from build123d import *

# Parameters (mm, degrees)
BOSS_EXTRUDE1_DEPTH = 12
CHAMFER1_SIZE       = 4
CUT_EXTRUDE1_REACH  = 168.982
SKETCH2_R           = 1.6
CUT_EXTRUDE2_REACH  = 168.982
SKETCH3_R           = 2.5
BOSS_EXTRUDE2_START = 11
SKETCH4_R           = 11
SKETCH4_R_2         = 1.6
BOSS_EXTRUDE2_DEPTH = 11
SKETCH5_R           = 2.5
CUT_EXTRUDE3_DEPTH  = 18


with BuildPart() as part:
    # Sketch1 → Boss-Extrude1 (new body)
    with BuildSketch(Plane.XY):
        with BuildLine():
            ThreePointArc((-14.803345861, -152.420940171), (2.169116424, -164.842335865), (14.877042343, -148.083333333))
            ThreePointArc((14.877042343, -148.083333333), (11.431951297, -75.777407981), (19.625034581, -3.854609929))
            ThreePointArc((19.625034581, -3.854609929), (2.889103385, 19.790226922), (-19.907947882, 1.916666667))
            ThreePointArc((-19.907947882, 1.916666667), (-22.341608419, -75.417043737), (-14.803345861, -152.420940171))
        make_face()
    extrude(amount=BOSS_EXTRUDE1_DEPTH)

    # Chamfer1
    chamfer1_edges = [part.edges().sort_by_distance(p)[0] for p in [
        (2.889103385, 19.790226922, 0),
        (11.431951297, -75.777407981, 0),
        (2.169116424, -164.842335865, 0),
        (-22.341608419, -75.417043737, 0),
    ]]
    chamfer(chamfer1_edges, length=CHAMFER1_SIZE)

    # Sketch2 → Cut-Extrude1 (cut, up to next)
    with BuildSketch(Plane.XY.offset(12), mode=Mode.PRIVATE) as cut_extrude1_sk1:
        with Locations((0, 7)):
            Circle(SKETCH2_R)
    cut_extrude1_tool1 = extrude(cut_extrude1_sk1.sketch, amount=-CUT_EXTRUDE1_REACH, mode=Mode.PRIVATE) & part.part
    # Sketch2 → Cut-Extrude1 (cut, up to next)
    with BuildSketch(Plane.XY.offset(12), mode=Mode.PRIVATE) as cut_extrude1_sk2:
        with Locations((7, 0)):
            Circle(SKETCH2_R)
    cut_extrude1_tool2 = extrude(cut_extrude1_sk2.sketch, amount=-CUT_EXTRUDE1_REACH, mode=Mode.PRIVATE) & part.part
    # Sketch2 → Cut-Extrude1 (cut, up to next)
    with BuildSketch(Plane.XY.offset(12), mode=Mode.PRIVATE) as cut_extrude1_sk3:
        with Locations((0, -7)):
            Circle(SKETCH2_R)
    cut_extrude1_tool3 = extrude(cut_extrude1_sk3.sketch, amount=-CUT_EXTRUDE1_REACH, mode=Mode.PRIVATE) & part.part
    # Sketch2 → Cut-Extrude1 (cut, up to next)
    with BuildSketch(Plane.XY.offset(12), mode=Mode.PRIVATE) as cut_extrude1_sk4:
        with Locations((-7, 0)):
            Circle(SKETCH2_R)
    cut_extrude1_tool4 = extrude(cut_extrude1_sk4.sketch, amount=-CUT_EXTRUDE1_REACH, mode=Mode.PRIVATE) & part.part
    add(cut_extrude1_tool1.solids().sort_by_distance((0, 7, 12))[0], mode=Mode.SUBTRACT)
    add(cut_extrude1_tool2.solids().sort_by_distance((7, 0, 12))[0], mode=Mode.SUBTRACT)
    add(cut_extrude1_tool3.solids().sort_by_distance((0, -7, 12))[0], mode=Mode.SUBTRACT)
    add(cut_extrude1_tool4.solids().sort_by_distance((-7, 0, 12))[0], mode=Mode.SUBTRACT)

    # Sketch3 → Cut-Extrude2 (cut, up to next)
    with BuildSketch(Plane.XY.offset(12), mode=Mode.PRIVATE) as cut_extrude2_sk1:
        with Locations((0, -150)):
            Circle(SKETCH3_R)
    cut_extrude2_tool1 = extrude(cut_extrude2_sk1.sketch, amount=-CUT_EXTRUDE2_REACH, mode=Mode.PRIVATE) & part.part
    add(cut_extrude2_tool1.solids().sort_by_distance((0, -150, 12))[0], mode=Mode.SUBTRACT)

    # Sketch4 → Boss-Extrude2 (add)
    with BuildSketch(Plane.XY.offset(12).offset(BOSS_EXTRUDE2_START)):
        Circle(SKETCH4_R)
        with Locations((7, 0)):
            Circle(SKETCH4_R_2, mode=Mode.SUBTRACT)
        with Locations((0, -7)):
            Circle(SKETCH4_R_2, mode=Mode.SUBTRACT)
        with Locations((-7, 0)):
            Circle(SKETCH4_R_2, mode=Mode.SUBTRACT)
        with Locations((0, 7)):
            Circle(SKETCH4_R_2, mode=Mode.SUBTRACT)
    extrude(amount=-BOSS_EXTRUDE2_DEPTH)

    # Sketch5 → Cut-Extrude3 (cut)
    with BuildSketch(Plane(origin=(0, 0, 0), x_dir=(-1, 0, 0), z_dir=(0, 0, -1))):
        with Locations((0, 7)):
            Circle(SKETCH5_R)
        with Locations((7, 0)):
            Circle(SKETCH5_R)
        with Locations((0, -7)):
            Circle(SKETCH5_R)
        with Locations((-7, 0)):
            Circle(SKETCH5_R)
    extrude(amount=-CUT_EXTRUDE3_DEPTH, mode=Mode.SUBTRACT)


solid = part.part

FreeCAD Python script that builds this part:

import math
import FreeCAD as App
import Part
import Sketcher
Q = App.Units.Quantity


def edges_at(feature, points):
    """Names of the edges that pass closest to the given points."""
    edges = feature.Shape.Edges
    near = lambda p: min(range(len(edges)), key=lambda i: edges[i].distToShape(Part.Vertex(*p))[0])
    return sorted({f"Edge{near(p) + 1}" for p in points})

doc = App.newDocument("Part")
body = doc.addObject("PartDesign::Body", "Body")

sketch1 = body.newObject("Sketcher::SketchObject", "Sketch")
sketch1.AttachmentSupport = (doc.getObject("XY_Plane"), [""])
sketch1.MapMode = "FlatFace"
sketch1.addGeometry([
    Part.ArcOfCircle(Part.Circle(App.Vector(0, -150, 0), App.Vector(0, 0, 1), 15), math.radians(-170.712065), math.radians(7.341197)),
    Part.ArcOfCircle(Part.Circle(App.Vector(461.188313, -90.583333, 0), App.Vector(0, 0, 1), 450), math.radians(168.887824), math.radians(187.341197)),
    Part.ArcOfCircle(Part.Circle(App.Vector(0, 0, 0), App.Vector(0, 0, 1), 20), math.radians(-11.112176), math.radians(174.500715)),
    Part.ArcOfCircle(Part.Circle(App.Vector(577.330489, -55.583333, 0), App.Vector(0, 0, 1), 600), math.radians(174.500715), math.radians(189.287935)),
], False)
sketch1.addConstraint([
    Sketcher.Constraint("Tangent", 0, 2, 1, 2),
    Sketcher.Constraint("Tangent", 1, 1, 2, 1),
    Sketcher.Constraint("Tangent", 2, 2, 3, 1),
    Sketcher.Constraint("Tangent", 3, 2, 0, 1),
    Sketcher.Constraint("Coincident", 2, 3, -1, 1),
    Sketcher.Constraint("PointOnObject", 0, 3, -2),
    Sketcher.Constraint("Radius", 0, Q("15 mm")),
    Sketcher.Constraint("Radius", 1, Q("450 mm")),
    Sketcher.Constraint("Radius", 2, Q("20 mm")),
    Sketcher.Constraint("Radius", 3, Q("600 mm")),
    Sketcher.Constraint("DistanceY", 0, 3, -1, 1, Q("150 mm")),
])
pad1 = body.newObject("PartDesign::Pad", "Pad")
pad1.Profile = sketch1
pad1.Length = 12
doc.recompute()

chamfer = body.newObject("PartDesign::Chamfer", "Chamfer")
chamfer.Base = (pad1, edges_at(pad1, [
    (2.889, 19.79, 0),
    (11.432, -75.777, 0),
    (2.169, -164.842, 0),
    (-22.342, -75.417, 0),
]))
chamfer.Size = 4

sketch2 = body.newObject("Sketcher::SketchObject", "Sketch001")
sketch2.AttachmentSupport = (doc.getObject("XY_Plane"), [""])
sketch2.MapMode = "FlatFace"
sketch2.AttachmentOffset = App.Placement(App.Vector(0, 0, 12), App.Rotation())
sketch2.addGeometry(Part.Circle(App.Vector(0, 7, 0), App.Vector(0, 0, 1), 1.6), False)
sketch2.addConstraint([
    Sketcher.Constraint("PointOnObject", 0, 3, -2),
    Sketcher.Constraint("Diameter", 0, Q("3.2 mm")),
    Sketcher.Constraint("DistanceY", -1, 1, 0, 3, Q("7 mm")),
])
pocket1 = body.newObject("PartDesign::Pocket", "Pocket")
pocket1.Profile = sketch2
pocket1.Type = "UpToFirst"

sketch3 = body.newObject("Sketcher::SketchObject", "Sketch002")
sketch3.AttachmentSupport = (doc.getObject("XY_Plane"), [""])
sketch3.MapMode = "FlatFace"
sketch3.AttachmentOffset = App.Placement(App.Vector(0, 0, 12), App.Rotation())
sketch3.addGeometry(Part.Circle(App.Vector(7, 0, 0), App.Vector(0, 0, 1), 1.6), False)
sketch3.addConstraint([
    Sketcher.Constraint("PointOnObject", 0, 3, -1),
    Sketcher.Constraint("Diameter", 0, Q("3.2 mm")),
    Sketcher.Constraint("DistanceX", -1, 1, 0, 3, Q("7 mm")),
])
pocket2 = body.newObject("PartDesign::Pocket", "Pocket001")
pocket2.Profile = sketch3
pocket2.Type = "UpToFirst"

sketch4 = body.newObject("Sketcher::SketchObject", "Sketch003")
sketch4.AttachmentSupport = (doc.getObject("XY_Plane"), [""])
sketch4.MapMode = "FlatFace"
sketch4.AttachmentOffset = App.Placement(App.Vector(0, 0, 12), App.Rotation())
sketch4.addGeometry(Part.Circle(App.Vector(0, -7, 0), App.Vector(0, 0, 1), 1.6), False)
sketch4.addConstraint([
    Sketcher.Constraint("PointOnObject", 0, 3, -2),
    Sketcher.Constraint("Diameter", 0, Q("3.2 mm")),
    Sketcher.Constraint("DistanceY", 0, 3, -1, 1, Q("7 mm")),
])
pocket3 = body.newObject("PartDesign::Pocket", "Pocket002")
pocket3.Profile = sketch4
pocket3.Type = "UpToFirst"

sketch5 = body.newObject("Sketcher::SketchObject", "Sketch004")
sketch5.AttachmentSupport = (doc.getObject("XY_Plane"), [""])
sketch5.MapMode = "FlatFace"
sketch5.AttachmentOffset = App.Placement(App.Vector(0, 0, 12), App.Rotation())
sketch5.addGeometry(Part.Circle(App.Vector(-7, 0, 0), App.Vector(0, 0, 1), 1.6), False)
sketch5.addConstraint([
    Sketcher.Constraint("PointOnObject", 0, 3, -1),
    Sketcher.Constraint("Diameter", 0, Q("3.2 mm")),
    Sketcher.Constraint("DistanceX", 0, 3, -1, 1, Q("7 mm")),
])
pocket4 = body.newObject("PartDesign::Pocket", "Pocket003")
pocket4.Profile = sketch5
pocket4.Type = "UpToFirst"

sketch6 = body.newObject("Sketcher::SketchObject", "Sketch005")
sketch6.AttachmentSupport = (doc.getObject("XY_Plane"), [""])
sketch6.MapMode = "FlatFace"
sketch6.AttachmentOffset = App.Placement(App.Vector(0, 0, 12), App.Rotation())
sketch6.addGeometry(Part.Circle(App.Vector(0, -150, 0), App.Vector(0, 0, 1), 2.5), False)
sketch6.addConstraint([
    Sketcher.Constraint("PointOnObject", 0, 3, -2),
    Sketcher.Constraint("Diameter", 0, Q("5 mm")),
    Sketcher.Constraint("DistanceY", 0, 3, -1, 1, Q("150 mm")),
])
pocket5 = body.newObject("PartDesign::Pocket", "Pocket004")
pocket5.Profile = sketch6
pocket5.Type = "UpToFirst"

sketch7 = body.newObject("Sketcher::SketchObject", "Sketch006")
sketch7.AttachmentSupport = (doc.getObject("XY_Plane"), [""])
sketch7.MapMode = "FlatFace"
sketch7.AttachmentOffset = App.Placement(App.Vector(0, 0, 23), App.Rotation())
sketch7.addGeometry([
    Part.Circle(App.Vector(0, 0, 0), App.Vector(0, 0, 1), 11),
    Part.Circle(App.Vector(0, -7, 0), App.Vector(0, 0, 1), 1.6),
    Part.Circle(App.Vector(-7, 0, 0), App.Vector(0, 0, 1), 1.6),
    Part.Circle(App.Vector(7, 0, 0), App.Vector(0, 0, 1), 1.6),
    Part.Circle(App.Vector(0, 7, 0), App.Vector(0, 0, 1), 1.6),
], False)
sketch7.addConstraint([
    Sketcher.Constraint("Coincident", 0, 3, -1, 1),
    Sketcher.Constraint("Equal", 1, 2),
    Sketcher.Constraint("Equal", 2, 3),
    Sketcher.Constraint("Equal", 3, 4),
    Sketcher.Constraint("Symmetric", 2, 3, 3, 3, -1, 1),
    Sketcher.Constraint("Symmetric", 1, 3, 4, 3, -1, 1),
    Sketcher.Constraint("PointOnObject", 1, 3, -2),
    Sketcher.Constraint("PointOnObject", 2, 3, -1),
    Sketcher.Constraint("Diameter", 0, Q("22 mm")),
    Sketcher.Constraint("Diameter", 1, Q("3.2 mm")),
    Sketcher.Constraint("DistanceY", 1, 3, -1, 1, Q("7 mm")),
    Sketcher.Constraint("DistanceX", 2, 3, -1, 1, Q("7 mm")),
])
pad2 = body.newObject("PartDesign::Pad", "Pad001")
pad2.Profile = sketch7
pad2.Length = 11
pad2.Reversed = True

sketch8 = body.newObject("Sketcher::SketchObject", "Sketch007")
sketch8.AttachmentSupport = (doc.getObject("XY_Plane"), [""])
sketch8.MapMode = "FlatFace"
sketch8.addGeometry([
    Part.Circle(App.Vector(0, 7, 0), App.Vector(0, 0, 1), 2.5),
    Part.Circle(App.Vector(-7, 0, 0), App.Vector(0, 0, 1), 2.5),
    Part.Circle(App.Vector(0, -7, 0), App.Vector(0, 0, 1), 2.5),
    Part.Circle(App.Vector(7, 0, 0), App.Vector(0, 0, 1), 2.5),
], False)
sketch8.addConstraint([
    Sketcher.Constraint("Equal", 0, 1),
    Sketcher.Constraint("Equal", 1, 2),
    Sketcher.Constraint("Equal", 2, 3),
    Sketcher.Constraint("Symmetric", 0, 3, 2, 3, -1, 1),
    Sketcher.Constraint("Symmetric", 1, 3, 3, 3, -1, 1),
    Sketcher.Constraint("PointOnObject", 0, 3, -2),
    Sketcher.Constraint("PointOnObject", 1, 3, -1),
    Sketcher.Constraint("Diameter", 0, Q("5 mm")),
    Sketcher.Constraint("DistanceY", -1, 1, 0, 3, Q("7 mm")),
    Sketcher.Constraint("DistanceX", 1, 3, -1, 1, Q("7 mm")),
])
pocket6 = body.newObject("PartDesign::Pocket", "Pocket005")
pocket6.Profile = sketch8
pocket6.Length = 18
pocket6.Reversed = True

doc.recompute()
